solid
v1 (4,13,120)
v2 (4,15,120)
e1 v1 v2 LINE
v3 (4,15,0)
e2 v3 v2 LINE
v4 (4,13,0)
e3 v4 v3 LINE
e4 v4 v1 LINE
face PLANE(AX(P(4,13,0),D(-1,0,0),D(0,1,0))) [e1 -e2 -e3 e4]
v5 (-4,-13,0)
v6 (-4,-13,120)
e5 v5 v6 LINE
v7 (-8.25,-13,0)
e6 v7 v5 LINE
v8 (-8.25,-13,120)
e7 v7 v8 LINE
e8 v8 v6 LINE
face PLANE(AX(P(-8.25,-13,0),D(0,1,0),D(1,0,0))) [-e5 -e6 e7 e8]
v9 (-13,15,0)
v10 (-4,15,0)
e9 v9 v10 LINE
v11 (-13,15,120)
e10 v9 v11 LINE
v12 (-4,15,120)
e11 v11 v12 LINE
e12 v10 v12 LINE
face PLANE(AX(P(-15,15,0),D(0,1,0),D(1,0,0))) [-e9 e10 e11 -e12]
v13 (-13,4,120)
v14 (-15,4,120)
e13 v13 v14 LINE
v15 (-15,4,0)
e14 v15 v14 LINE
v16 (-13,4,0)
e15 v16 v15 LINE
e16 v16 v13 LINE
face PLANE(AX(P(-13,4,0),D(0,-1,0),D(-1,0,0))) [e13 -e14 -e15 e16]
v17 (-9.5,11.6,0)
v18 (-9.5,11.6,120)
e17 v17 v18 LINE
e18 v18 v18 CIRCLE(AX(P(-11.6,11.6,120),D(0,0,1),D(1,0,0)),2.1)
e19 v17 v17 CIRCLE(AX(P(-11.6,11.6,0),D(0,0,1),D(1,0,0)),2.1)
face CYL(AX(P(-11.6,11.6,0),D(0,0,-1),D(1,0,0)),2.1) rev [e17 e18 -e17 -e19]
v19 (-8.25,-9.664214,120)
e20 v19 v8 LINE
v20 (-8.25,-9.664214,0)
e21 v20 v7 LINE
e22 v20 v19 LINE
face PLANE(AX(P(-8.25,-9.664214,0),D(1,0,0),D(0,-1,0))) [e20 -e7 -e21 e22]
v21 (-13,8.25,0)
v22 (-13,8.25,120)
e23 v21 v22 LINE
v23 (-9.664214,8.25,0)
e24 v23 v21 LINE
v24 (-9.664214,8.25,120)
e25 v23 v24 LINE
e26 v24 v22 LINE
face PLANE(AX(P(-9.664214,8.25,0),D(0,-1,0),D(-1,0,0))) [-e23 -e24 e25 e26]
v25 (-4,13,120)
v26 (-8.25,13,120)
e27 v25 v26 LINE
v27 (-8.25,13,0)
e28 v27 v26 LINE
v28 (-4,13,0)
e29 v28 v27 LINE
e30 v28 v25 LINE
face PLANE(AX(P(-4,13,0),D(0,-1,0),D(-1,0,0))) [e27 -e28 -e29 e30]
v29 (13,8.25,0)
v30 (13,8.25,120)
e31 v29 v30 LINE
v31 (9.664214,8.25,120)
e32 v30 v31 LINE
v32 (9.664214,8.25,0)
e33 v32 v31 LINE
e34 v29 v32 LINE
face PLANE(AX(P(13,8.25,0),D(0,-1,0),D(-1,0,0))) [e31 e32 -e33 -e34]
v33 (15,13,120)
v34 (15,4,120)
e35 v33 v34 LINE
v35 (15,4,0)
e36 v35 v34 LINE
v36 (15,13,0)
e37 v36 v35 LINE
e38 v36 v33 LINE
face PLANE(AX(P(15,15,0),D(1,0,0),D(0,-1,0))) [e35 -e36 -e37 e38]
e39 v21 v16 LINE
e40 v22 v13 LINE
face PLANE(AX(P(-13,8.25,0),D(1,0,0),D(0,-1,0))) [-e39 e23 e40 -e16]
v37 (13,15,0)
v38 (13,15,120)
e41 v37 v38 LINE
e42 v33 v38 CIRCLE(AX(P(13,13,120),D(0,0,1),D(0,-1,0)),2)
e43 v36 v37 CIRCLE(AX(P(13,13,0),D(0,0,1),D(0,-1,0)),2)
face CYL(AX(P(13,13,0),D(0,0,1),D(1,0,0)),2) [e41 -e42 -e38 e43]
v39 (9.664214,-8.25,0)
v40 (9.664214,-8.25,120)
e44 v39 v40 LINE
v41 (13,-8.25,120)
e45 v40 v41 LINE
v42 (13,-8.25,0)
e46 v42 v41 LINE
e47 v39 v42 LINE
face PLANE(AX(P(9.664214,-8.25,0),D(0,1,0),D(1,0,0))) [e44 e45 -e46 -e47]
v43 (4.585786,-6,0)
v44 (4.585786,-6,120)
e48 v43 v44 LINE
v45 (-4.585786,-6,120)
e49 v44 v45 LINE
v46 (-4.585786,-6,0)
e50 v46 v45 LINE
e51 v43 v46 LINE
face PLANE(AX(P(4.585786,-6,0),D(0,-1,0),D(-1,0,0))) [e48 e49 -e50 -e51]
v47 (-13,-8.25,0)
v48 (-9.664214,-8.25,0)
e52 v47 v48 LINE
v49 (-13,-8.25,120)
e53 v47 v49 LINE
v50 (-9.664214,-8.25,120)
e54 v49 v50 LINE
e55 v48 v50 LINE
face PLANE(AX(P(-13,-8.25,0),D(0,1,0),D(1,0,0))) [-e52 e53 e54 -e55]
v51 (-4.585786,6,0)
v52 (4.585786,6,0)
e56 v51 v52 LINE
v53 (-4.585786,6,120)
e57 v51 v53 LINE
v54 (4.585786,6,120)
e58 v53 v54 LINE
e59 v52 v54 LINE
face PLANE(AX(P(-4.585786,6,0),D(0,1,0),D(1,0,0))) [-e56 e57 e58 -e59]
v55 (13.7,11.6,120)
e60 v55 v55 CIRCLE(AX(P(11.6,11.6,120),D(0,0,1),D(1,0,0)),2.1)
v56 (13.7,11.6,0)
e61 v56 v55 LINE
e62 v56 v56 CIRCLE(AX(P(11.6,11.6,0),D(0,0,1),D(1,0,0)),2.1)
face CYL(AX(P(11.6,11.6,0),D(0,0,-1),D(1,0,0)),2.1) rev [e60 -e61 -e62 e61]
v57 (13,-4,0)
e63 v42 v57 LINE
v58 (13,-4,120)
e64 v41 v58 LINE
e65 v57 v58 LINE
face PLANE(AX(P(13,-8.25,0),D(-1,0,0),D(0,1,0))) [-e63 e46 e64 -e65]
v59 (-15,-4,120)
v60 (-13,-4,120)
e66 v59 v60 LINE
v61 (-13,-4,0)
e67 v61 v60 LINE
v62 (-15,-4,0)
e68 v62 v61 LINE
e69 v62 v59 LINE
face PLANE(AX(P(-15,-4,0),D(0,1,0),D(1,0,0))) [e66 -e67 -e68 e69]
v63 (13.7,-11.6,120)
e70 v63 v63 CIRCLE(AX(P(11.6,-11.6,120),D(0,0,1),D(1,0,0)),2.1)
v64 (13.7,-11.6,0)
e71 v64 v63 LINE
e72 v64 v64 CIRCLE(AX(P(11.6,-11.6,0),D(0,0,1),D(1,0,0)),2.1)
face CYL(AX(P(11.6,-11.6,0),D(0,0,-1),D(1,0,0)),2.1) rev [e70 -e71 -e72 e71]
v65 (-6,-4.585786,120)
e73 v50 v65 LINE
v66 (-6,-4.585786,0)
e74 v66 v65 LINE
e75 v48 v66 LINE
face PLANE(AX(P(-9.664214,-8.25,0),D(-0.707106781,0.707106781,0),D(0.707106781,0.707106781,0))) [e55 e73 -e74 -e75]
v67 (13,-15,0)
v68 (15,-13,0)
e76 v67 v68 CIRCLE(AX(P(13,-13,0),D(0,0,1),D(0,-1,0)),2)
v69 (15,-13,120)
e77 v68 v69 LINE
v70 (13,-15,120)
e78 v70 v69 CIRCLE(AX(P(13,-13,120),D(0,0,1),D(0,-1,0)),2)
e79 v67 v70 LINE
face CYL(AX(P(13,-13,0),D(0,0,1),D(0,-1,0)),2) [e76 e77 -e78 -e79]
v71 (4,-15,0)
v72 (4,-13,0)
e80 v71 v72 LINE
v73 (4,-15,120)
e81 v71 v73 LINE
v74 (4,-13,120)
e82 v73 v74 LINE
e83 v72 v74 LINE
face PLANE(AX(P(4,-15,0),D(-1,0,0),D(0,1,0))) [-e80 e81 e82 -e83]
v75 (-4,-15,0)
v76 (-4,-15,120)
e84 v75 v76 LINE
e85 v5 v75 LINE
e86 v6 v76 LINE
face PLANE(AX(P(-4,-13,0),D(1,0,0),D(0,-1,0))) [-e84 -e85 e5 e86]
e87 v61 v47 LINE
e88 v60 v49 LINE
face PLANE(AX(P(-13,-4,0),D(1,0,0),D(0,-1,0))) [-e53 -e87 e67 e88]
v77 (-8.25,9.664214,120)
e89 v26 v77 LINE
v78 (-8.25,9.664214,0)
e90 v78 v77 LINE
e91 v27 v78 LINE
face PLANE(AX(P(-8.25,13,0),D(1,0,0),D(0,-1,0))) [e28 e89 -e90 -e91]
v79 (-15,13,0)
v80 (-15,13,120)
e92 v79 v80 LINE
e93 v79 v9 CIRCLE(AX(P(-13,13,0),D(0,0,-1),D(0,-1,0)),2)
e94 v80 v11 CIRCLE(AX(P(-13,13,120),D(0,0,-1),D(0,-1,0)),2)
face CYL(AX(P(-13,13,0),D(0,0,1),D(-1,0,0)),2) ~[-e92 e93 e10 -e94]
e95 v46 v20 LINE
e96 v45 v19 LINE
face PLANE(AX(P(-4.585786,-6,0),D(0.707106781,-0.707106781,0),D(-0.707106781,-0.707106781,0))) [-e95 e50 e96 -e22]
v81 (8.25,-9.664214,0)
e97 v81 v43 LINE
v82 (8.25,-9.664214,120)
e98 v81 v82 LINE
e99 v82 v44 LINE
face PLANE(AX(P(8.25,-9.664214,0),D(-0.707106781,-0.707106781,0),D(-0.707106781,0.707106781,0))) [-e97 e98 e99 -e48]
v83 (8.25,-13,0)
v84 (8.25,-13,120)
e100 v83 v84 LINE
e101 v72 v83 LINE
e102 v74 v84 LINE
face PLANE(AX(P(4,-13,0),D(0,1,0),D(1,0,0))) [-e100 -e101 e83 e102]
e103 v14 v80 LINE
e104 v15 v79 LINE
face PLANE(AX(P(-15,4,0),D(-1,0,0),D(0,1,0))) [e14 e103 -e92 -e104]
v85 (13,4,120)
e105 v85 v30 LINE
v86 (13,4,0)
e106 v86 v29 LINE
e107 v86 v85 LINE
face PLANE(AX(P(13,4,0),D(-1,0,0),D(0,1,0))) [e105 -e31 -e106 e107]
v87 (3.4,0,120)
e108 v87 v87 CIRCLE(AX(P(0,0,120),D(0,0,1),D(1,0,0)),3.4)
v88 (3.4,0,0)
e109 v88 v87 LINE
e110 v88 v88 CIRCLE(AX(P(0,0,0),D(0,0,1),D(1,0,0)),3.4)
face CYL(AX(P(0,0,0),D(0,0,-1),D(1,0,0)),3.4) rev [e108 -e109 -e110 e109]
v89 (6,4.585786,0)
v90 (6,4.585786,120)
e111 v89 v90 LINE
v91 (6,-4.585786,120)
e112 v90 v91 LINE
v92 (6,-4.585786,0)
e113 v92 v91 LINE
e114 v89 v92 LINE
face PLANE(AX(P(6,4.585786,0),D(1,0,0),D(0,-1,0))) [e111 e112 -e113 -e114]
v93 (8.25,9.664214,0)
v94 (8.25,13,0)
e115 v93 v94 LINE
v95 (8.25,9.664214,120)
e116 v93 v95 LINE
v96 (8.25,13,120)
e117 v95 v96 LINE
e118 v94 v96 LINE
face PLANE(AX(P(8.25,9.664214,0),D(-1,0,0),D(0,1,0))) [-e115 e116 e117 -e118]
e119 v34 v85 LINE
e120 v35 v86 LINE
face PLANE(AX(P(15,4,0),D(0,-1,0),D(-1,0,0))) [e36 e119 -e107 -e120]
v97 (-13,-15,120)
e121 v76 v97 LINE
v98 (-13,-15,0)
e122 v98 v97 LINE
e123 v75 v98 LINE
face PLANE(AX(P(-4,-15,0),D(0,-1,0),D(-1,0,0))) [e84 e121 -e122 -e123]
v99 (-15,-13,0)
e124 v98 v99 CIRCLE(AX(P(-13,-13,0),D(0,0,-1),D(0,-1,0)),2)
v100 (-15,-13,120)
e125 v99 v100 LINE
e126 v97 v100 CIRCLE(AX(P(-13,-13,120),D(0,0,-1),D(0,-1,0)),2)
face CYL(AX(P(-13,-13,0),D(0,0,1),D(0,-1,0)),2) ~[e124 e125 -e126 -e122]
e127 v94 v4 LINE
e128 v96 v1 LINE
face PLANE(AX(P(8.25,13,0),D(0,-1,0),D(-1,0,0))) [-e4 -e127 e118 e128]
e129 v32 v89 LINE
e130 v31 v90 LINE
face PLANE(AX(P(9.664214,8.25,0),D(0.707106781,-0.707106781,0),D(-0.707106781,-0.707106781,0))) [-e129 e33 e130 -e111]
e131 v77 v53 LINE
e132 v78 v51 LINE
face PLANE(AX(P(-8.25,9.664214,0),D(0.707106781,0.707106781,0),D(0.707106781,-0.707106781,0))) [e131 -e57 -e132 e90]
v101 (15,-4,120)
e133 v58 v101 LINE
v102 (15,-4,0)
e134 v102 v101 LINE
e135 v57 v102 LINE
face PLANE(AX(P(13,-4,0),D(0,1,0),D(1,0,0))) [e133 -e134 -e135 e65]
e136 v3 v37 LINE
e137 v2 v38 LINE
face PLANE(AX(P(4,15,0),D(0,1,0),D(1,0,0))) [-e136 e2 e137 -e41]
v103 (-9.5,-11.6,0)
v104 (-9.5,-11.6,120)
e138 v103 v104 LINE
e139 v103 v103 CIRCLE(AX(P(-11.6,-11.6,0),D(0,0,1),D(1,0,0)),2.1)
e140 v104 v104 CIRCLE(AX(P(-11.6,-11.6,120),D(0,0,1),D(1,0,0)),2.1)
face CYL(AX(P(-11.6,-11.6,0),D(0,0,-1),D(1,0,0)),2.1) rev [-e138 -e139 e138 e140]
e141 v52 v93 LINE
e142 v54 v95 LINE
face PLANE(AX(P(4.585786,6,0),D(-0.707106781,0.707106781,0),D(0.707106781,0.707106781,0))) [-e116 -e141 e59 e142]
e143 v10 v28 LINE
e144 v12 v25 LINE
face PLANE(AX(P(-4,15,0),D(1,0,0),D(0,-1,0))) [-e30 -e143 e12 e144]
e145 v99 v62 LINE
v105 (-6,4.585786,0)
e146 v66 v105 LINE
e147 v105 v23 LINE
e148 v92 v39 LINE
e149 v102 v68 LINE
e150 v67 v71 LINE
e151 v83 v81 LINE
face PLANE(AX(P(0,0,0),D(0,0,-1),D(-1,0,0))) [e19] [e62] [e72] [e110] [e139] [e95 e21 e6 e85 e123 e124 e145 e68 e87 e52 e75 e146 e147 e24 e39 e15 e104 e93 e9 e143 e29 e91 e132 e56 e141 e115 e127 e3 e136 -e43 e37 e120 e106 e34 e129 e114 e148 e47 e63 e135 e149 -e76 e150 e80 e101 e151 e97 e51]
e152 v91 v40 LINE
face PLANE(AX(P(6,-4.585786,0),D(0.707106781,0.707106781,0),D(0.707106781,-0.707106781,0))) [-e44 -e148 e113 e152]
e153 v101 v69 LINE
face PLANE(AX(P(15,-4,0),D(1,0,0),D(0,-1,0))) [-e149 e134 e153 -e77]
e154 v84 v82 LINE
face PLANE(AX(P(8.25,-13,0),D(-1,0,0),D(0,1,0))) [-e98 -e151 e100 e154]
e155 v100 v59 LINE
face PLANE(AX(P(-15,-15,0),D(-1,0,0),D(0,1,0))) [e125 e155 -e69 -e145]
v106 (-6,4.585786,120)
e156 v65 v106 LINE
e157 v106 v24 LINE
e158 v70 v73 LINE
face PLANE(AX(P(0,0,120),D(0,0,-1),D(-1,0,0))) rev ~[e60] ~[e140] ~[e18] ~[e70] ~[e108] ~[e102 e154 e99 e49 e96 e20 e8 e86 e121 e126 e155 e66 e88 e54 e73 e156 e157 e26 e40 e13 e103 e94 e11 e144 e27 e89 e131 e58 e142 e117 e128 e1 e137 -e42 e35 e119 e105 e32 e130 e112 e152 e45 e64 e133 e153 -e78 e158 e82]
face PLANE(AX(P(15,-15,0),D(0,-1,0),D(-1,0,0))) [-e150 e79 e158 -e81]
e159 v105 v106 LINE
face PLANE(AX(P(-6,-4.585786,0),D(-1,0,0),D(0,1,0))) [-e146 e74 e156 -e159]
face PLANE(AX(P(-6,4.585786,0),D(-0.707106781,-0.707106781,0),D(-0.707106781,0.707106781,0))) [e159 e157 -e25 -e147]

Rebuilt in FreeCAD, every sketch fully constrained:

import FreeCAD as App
import Part
import Sketcher
Q = App.Units.Quantity


def edges_at(feature, points):
    """Names of the edges that pass closest to the given points."""
    edges = feature.Shape.Edges
    near = lambda p: min(range(len(edges)), key=lambda i: edges[i].distToShape(Part.Vertex(*p))[0])
    return sorted({f"Edge{near(p) + 1}" for p in points})

doc = App.newDocument("Part")
params = doc.addObject("Spreadsheet::Sheet", "Params")
for row, (alias, value) in enumerate([
    ("sketch1_diameter", "4.2 mm"),
    ("sketch1_diameter2", "6.8 mm"),
    ("sketch1_width", "11 mm"),
    ("sketch1_width2", "2 mm"),
    ("sketch1_width3", "4.25 mm"),
    ("pad1_length", "120 mm"),
    ("fillet_radius", "2 mm"),
], start=1):
    params.set(f"A{row}", alias)
    params.set(f"B{row}", "=" + value)
    params.setAlias(f"B{row}", alias)

body = doc.addObject("PartDesign::Body", "Body")

# Sketch on XY plane
sketch1 = body.newObject("Sketcher::SketchObject", "Sketch")
sketch1.AttachmentSupport = (doc.getObject("XY_Plane"), [""])
sketch1.MapMode = "FlatFace"
sketch1.addGeometry([
    Part.LineSegment(App.Vector(4, -15, 0), App.Vector(15, -15, 0)),  # 0
    Part.LineSegment(App.Vector(15, -15, 0), App.Vector(15, -4, 0)),  # 1
    Part.LineSegment(App.Vector(15, -4, 0), App.Vector(13, -4, 0)),  # 2
    Part.LineSegment(App.Vector(13, -4, 0), App.Vector(13, -8.2, 0)),  # 3
    Part.LineSegment(App.Vector(13, -8.2, 0), App.Vector(9.7, -8.2, 0)),  # 4
    Part.LineSegment(App.Vector(9.7, -8.2, 0), App.Vector(6, -4.6, 0)),  # 5
    Part.LineSegment(App.Vector(6, -4.6, 0), App.Vector(6, 4.6, 0)),  # 6
    Part.LineSegment(App.Vector(6, 4.6, 0), App.Vector(9.7, 8.2, 0)),  # 7
    Part.LineSegment(App.Vector(9.7, 8.2, 0), App.Vector(13, 8.2, 0)),  # 8
    Part.LineSegment(App.Vector(13, 8.2, 0), App.Vector(13, 4, 0)),  # 9
    Part.LineSegment(App.Vector(13, 4, 0), App.Vector(15, 4, 0)),  # 10
    Part.LineSegment(App.Vector(15, 4, 0), App.Vector(15, 15, 0)),  # 11
    Part.LineSegment(App.Vector(15, 15, 0), App.Vector(4, 15, 0)),  # 12
    Part.LineSegment(App.Vector(4, 15, 0), App.Vector(4, 13, 0)),  # 13
    Part.LineSegment(App.Vector(4, 13, 0), App.Vector(8.2, 13, 0)),  # 14
    Part.LineSegment(App.Vector(8.2, 13, 0), App.Vector(8.2, 9.7, 0)),  # 15
    Part.LineSegment(App.Vector(8.2, 9.7, 0), App.Vector(4.6, 6, 0)),  # 16
    Part.LineSegment(App.Vector(4.6, 6, 0), App.Vector(-4.6, 6, 0)),  # 17
    Part.LineSegment(App.Vector(-4.6, 6, 0), App.Vector(-8.2, 9.7, 0)),  # 18
    Part.LineSegment(App.Vector(-8.2, 9.7, 0), App.Vector(-8.2, 13, 0)),  # 19
    Part.LineSegment(App.Vector(-8.2, 13, 0), App.Vector(-4, 13, 0)),  # 20
    Part.LineSegment(App.Vector(-4, 13, 0), App.Vector(-4, 15, 0)),  # 21
    Part.LineSegment(App.Vector(-4, 15, 0), App.Vector(-15, 15, 0)),  # 22
    Part.LineSegment(App.Vector(-15, 15, 0), App.Vector(-15, 4, 0)),  # 23
    Part.LineSegment(App.Vector(-15, 4, 0), App.Vector(-13, 4, 0)),  # 24
    Part.LineSegment(App.Vector(-13, 4, 0), App.Vector(-13, 8.2, 0)),  # 25
    Part.LineSegment(App.Vector(-13, 8.2, 0), App.Vector(-9.7, 8.2, 0)),  # 26
    Part.LineSegment(App.Vector(-9.7, 8.2, 0), App.Vector(-6, 4.6, 0)),  # 27
    Part.LineSegment(App.Vector(-6, 4.6, 0), App.Vector(-6, -4.6, 0)),  # 28
    Part.LineSegment(App.Vector(-6, -4.6, 0), App.Vector(-9.7, -8.2, 0)),  # 29
    Part.LineSegment(App.Vector(-9.7, -8.2, 0), App.Vector(-13, -8.2, 0)),  # 30
    Part.LineSegment(App.Vector(-13, -8.2, 0), App.Vector(-13, -4, 0)),  # 31
    Part.LineSegment(App.Vector(-13, -4, 0), App.Vector(-15, -4, 0)),  # 32
    Part.LineSegment(App.Vector(-15, -4, 0), App.Vector(-15, -15, 0)),  # 33
    Part.LineSegment(App.Vector(-15, -15, 0), App.Vector(-4, -15, 0)),  # 34
    Part.LineSegment(App.Vector(-4, -15, 0), App.Vector(-4, -13, 0)),  # 35
    Part.LineSegment(App.Vector(-4, -13, 0), App.Vector(-8.2, -13, 0)),  # 36
    Part.LineSegment(App.Vector(-8.2, -13, 0), App.Vector(-8.2, -9.7, 0)),  # 37
    Part.LineSegment(App.Vector(-8.2, -9.7, 0), App.Vector(-4.6, -6, 0)),  # 38
    Part.LineSegment(App.Vector(-4.6, -6, 0), App.Vector(4.6, -6, 0)),  # 39
    Part.LineSegment(App.Vector(4.6, -6, 0), App.Vector(8.2, -9.7, 0)),  # 40
    Part.LineSegment(App.Vector(8.2, -9.7, 0), App.Vector(8.2, -13, 0)),  # 41
    Part.LineSegment(App.Vector(8.2, -13, 0), App.Vector(4, -13, 0)),  # 42
    Part.LineSegment(App.Vector(4, -13, 0), App.Vector(4, -15, 0)),  # 43
    Part.Circle(App.Vector(11.6, -11.6, 0), App.Vector(0, 0, 1), 2.1),  # 44
    Part.Circle(App.Vector(-11.6, -11.6, 0), App.Vector(0, 0, 1), 2.1),  # 45
    Part.Circle(App.Vector(11.6, 11.6, 0), App.Vector(0, 0, 1), 2.1),  # 46
    Part.Circle(App.Vector(0, 0, 0), App.Vector(0, 0, 1), 3.4),  # 47
    Part.Circle(App.Vector(-11.6, 11.6, 0), App.Vector(0, 0, 1), 2.1),  # 48
], False)
sketch1.addConstraint([
    Sketcher.Constraint("Coincident", 0, 2, 1, 1),
    Sketcher.Constraint("Coincident", 1, 2, 2, 1),
    Sketcher.Constraint("Coincident", 2, 2, 3, 1),
    Sketcher.Constraint("Coincident", 3, 2, 4, 1),
    Sketcher.Constraint("Coincident", 4, 2, 5, 1),
    Sketcher.Constraint("Coincident", 5, 2, 6, 1),
    Sketcher.Constraint("Coincident", 6, 2, 7, 1),
    Sketcher.Constraint("Coincident", 7, 2, 8, 1),
    Sketcher.Constraint("Coincident", 8, 2, 9, 1),
    Sketcher.Constraint("Coincident", 9, 2, 10, 1),
    Sketcher.Constraint("Coincident", 10, 2, 11, 1),
    Sketcher.Constraint("Coincident", 11, 2, 12, 1),
    Sketcher.Constraint("Coincident", 12, 2, 13, 1),
    Sketcher.Constraint("Coincident", 13, 2, 14, 1),
    Sketcher.Constraint("Coincident", 14, 2, 15, 1),
    Sketcher.Constraint("Coincident", 15, 2, 16, 1),
    Sketcher.Constraint("Coincident", 16, 2, 17, 1),
    Sketcher.Constraint("Coincident", 17, 2, 18, 1),
    Sketcher.Constraint("Coincident", 18, 2, 19, 1),
    Sketcher.Constraint("Coincident", 19, 2, 20, 1),
    Sketcher.Constraint("Coincident", 20, 2, 21, 1),
    Sketcher.Constraint("Coincident", 21, 2, 22, 1),
    Sketcher.Constraint("Coincident", 22, 2, 23, 1),
    Sketcher.Constraint("Coincident", 23, 2, 24, 1),
    Sketcher.Constraint("Coincident", 24, 2, 25, 1),
    Sketcher.Constraint("Coincident", 25, 2, 26, 1),
    Sketcher.Constraint("Coincident", 26, 2, 27, 1),
    Sketcher.Constraint("Coincident", 27, 2, 28, 1),
    Sketcher.Constraint("Coincident", 28, 2, 29, 1),
    Sketcher.Constraint("Coincident", 29, 2, 30, 1),
    Sketcher.Constraint("Coincident", 30, 2, 31, 1),
    Sketcher.Constraint("Coincident", 31, 2, 32, 1),
    Sketcher.Constraint("Coincident", 32, 2, 33, 1),
    Sketcher.Constraint("Coincident", 33, 2, 34, 1),
    Sketcher.Constraint("Coincident", 34, 2, 35, 1),
    Sketcher.Constraint("Coincident", 35, 2, 36, 1),
    Sketcher.Constraint("Coincident", 36, 2, 37, 1),
    Sketcher.Constraint("Coincident", 37, 2, 38, 1),
    Sketcher.Constraint("Coincident", 38, 2, 39, 1),
    Sketcher.Constraint("Coincident", 39, 2, 40, 1),
    Sketcher.Constraint("Coincident", 40, 2, 41, 1),
    Sketcher.Constraint("Coincident", 41, 2, 42, 1),
    Sketcher.Constraint("Coincident", 42, 2, 43, 1),
    Sketcher.Constraint("Coincident", 43, 2, 0, 1),
    Sketcher.Constraint("Horizontal", 0),
    Sketcher.Constraint("Vertical", 1),
    Sketcher.Constraint("Horizontal", 2),
    Sketcher.Constraint("Vertical", 3),
    Sketcher.Constraint("Horizontal", 4),
    Sketcher.Constraint("Vertical", 6),
    Sketcher.Constraint("Horizontal", 8),
    Sketcher.Constraint("Vertical", 9),
    Sketcher.Constraint("Horizontal", 10),
    Sketcher.Constraint("Vertical", 11),
    Sketcher.Constraint("Horizontal", 12),
    Sketcher.Constraint("Vertical", 13),
    Sketcher.Constraint("Horizontal", 14),
    Sketcher.Constraint("Vertical", 15),
    Sketcher.Constraint("Horizontal", 17),
    Sketcher.Constraint("Vertical", 19),
    Sketcher.Constraint("Horizontal", 20),
    Sketcher.Constraint("Vertical", 21),
    Sketcher.Constraint("Horizontal", 22),
    Sketcher.Constraint("Vertical", 23),
    Sketcher.Constraint("Horizontal", 24),
    Sketcher.Constraint("Vertical", 25),
    Sketcher.Constraint("Horizontal", 26),
    Sketcher.Constraint("Vertical", 28),
    Sketcher.Constraint("Horizontal", 30),
    Sketcher.Constraint("Vertical", 31),
    Sketcher.Constraint("Horizontal", 32),
    Sketcher.Constraint("Vertical", 33),
    Sketcher.Constraint("Horizontal", 34),
    Sketcher.Constraint("Vertical", 35),
    Sketcher.Constraint("Horizontal", 36),
    Sketcher.Constraint("Vertical", 37),
    Sketcher.Constraint("Horizontal", 39),
    Sketcher.Constraint("Vertical", 41),
    Sketcher.Constraint("Horizontal", 42),
    Sketcher.Constraint("Vertical", 43),
    Sketcher.Constraint("Coincident", 47, 3, -1, 1),
    Sketcher.Constraint("Equal", 44, 45),
    Sketcher.Constraint("Equal", 45, 46),
    Sketcher.Constraint("Equal", 46, 48),
    Sketcher.Constraint("Symmetric", 45, 3, 46, 3, -1, 1),
    Sketcher.Constraint("Symmetric", 44, 3, 48, 3, -1, 1),
    Sketcher.Constraint("Symmetric", 0, 2, 22, 2, -1, 1),
    Sketcher.Constraint("Symmetric", 2, 2, 24, 2, -1, 1),
    Sketcher.Constraint("Symmetric", 4, 2, 26, 2, -1, 1),
    Sketcher.Constraint("Symmetric", 5, 2, 27, 2, -1, 1),
    Sketcher.Constraint("Symmetric", 7, 2, 29, 2, -1, 1),
    Sketcher.Constraint("Symmetric", 9, 2, 31, 2, -1, 1),
    Sketcher.Constraint("Symmetric", 11, 2, 33, 2, -1, 1),
    Sketcher.Constraint("Symmetric", 13, 2, 35, 2, -1, 1),
    Sketcher.Constraint("Symmetric", 15, 2, 37, 2, -1, 1),
    Sketcher.Constraint("Symmetric", 16, 2, 38, 2, -1, 1),
    Sketcher.Constraint("Symmetric", 18, 2, 40, 2, -1, 1),
    Sketcher.Constraint("Symmetric", 20, 2, 42, 2, -1, 1),
    Sketcher.Constraint("Symmetric", 44, 3, 45, 3, -2),
    Sketcher.Constraint("Symmetric", 15, 2, 18, 2, -2),
    Sketcher.Constraint("Symmetric", 13, 2, 20, 2, -2),
    Sketcher.Constraint("Symmetric", 11, 2, 22, 2, -2),
    Sketcher.Constraint("Symmetric", 9, 2, 24, 2, -2),
    Sketcher.Constraint("Symmetric", 7, 2, 26, 2, -2),
    Sketcher.Constraint("Perpendicular", 5, 7),
    Sketcher.Constraint("Parallel", 7, 16),
    Sketcher.Constraint("Perpendicular", 16, 18),
    Sketcher.Constraint("Perpendicular", 27, 29),
    Sketcher.Constraint("Perpendicular", 38, 40),
    Sketcher.Constraint("Horizontal", 6, 2, 27, 2),
    Sketcher.Constraint("Equal", 34, 1),
    Sketcher.Constraint("Equal", 42, 3),
    Sketcher.Constraint("Equal", 39, 6),
    Sketcher.Constraint("Equal", 32, 13),
    Sketcher.Constraint("Equal", 30, 15),
    Sketcher.Constraint("Equal", 7, 16),
    Sketcher.Constraint("Diameter", 44, Q("4.2 mm")),
    Sketcher.Constraint("Diameter", 47, Q("6.8 mm")),
    Sketcher.Constraint("DistanceX", 0, 1, 0, 2, Q("11 mm")),
    Sketcher.Constraint("DistanceX", 2, 2, 2, 1, Q("2 mm")),
    Sketcher.Constraint("DistanceX", -1, 1, 0, 2, Q("15 mm")),
    Sketcher.Constraint("DistanceX", -1, 1, 5, 2, Q("6 mm")),
    Sketcher.Constraint("DistanceX", 14, 1, 14, 2, Q("4.25 mm")),
    Sketcher.Constraint("DistanceX", -1, 1, 44, 3, Q("11.6 mm")),
    Sketcher.Constraint("DistanceY", 44, 3, -1, 1, Q("11.6 mm")),
    Sketcher.Constraint("Distance", 5, Q("5.181981 mm")),
])
sketch1.setExpression("Constraints[116]", "Params.sketch1_diameter")
sketch1.setExpression("Constraints[117]", "Params.sketch1_diameter2")
sketch1.setExpression("Constraints[118]", "Params.sketch1_width")
sketch1.setExpression("Constraints[119]", "Params.sketch1_width2")
sketch1.setExpression("Constraints[122]", "Params.sketch1_width3")
pad1 = body.newObject("PartDesign::Pad", "Pad")
pad1.Profile = sketch1
pad1.setExpression("Length", "Params.pad1_length")
doc.recompute()

fillet = body.newObject("PartDesign::Fillet", "Fillet")
fillet.Base = (pad1, edges_at(pad1, [
    (-15, -15, 60),
    (-15, 15, 60),
    (15, 15, 60),
    (15, -15, 60),
]))
fillet.setExpression("Radius", "Params.fillet_radius")

doc.recompute()
